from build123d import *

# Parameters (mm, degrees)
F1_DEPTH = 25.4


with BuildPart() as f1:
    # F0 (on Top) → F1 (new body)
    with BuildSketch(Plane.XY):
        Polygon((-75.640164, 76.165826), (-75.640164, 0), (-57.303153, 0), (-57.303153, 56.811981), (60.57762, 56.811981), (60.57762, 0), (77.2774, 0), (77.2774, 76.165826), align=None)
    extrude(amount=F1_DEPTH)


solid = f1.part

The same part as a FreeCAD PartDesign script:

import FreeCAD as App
import Part
import Sketcher
from FreeCAD import Vector
Q = App.Units.Quantity

doc = App.newDocument("Part")
body = doc.addObject("PartDesign::Body", "Body")

# Sketch on XY plane
sketch1 = doc.addObject("Sketcher::SketchObject", "Sketch")
body.addObject(sketch1)
sketch1.AttachmentSupport = (doc.XY_Plane, [""])
sketch1.MapMode = "FlatFace"
sketch1.addGeometry([
    Part.LineSegment(Vector(-75.640164, 76.165826, 0), Vector(-75.640164, 0, 0)),  # 0
    Part.LineSegment(Vector(-75.640164, 0, 0), Vector(-57.303153, 0, 0)),  # 1
    Part.LineSegment(Vector(-57.303153, 0, 0), Vector(-57.303153, 56.811981, 0)),  # 2
    Part.LineSegment(Vector(-57.303153, 56.811981, 0), Vector(60.57762, 56.811981, 0)),  # 3
    Part.LineSegment(Vector(60.57762, 56.811981, 0), Vector(60.57762, 0, 0)),  # 4
    Part.LineSegment(Vector(60.57762, 0, 0), Vector(77.2774, 0, 0)),  # 5
    Part.LineSegment(Vector(77.2774, 0, 0), Vector(77.2774, 76.165826, 0)),  # 6
    Part.LineSegment(Vector(77.2774, 76.165826, 0), Vector(-75.640164, 76.165826, 0)),  # 7
], False)
sketch1.addConstraint([
    Sketcher.Constraint("Coincident", 0, 2, 1, 1),
    Sketcher.Constraint("Coincident", 1, 2, 2, 1),
    Sketcher.Constraint("Coincident", 2, 2, 3, 1),
    Sketcher.Constraint("Coincident", 3, 2, 4, 1),
    Sketcher.Constraint("Coincident", 4, 2, 5, 1),
    Sketcher.Constraint("Coincident", 5, 2, 6, 1),
    Sketcher.Constraint("Coincident", 6, 2, 7, 1),
    Sketcher.Constraint("Coincident", 7, 2, 0, 1),
    Sketcher.Constraint("Vertical", 0),
    Sketcher.Constraint("Horizontal", 1),
    Sketcher.Constraint("Vertical", 2),
    Sketcher.Constraint("Horizontal", 3),
    Sketcher.Constraint("Vertical", 4),
    Sketcher.Constraint("Horizontal", 5),
    Sketcher.Constraint("Vertical", 6),
    Sketcher.Constraint("Horizontal", 7),
    Sketcher.Constraint("PointOnObject", 0, 2, -1),
    Sketcher.Constraint("PointOnObject", 4, 2, -1),
    Sketcher.Constraint("DistanceX", 1, 1, 1, 2, Q("18.337011 mm")),
    Sketcher.Constraint("DistanceX", 5, 1, 5, 2, Q("16.69978 mm")),
    Sketcher.Constraint("DistanceY", 2, 1, 2, 2, Q("56.811981 mm")),
    Sketcher.Constraint("DistanceX", -1, 1, 5, 2, Q("77.2774 mm")),
    Sketcher.Constraint("DistanceX", 3, 1, 3, 2, Q("117.880773 mm")),
    Sketcher.Constraint("DistanceY", 0, 2, 0, 1, Q("76.165826 mm")),
])
pad1 = doc.addObject("PartDesign::Pad", "Pad")
body.addObject(pad1)
pad1.Profile = sketch1
pad1.Length = Q("1 in")

doc.recompute()
